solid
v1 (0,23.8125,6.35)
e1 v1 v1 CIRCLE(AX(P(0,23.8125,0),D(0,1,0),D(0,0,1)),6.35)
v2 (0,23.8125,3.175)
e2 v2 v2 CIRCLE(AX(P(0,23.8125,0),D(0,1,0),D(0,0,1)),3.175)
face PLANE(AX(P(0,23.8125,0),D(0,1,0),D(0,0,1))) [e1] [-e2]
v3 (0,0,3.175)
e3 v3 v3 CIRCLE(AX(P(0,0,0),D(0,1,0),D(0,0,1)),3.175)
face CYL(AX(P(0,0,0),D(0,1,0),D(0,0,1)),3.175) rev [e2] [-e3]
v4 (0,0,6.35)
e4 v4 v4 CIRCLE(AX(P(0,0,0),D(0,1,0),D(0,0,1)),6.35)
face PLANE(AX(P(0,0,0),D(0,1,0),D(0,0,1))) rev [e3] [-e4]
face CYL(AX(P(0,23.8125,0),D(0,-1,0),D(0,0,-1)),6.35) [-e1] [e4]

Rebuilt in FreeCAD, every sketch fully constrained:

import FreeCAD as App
import Part
import Sketcher
Q = App.Units.Quantity

doc = App.newDocument("Part")
params = doc.addObject("Spreadsheet::Sheet", "Params")
for row, (alias, value) in enumerate([
    ("sketch1_diameter", "0.5 in"),
    ("pad1_length", "0.9375 in"),
    ("sketch2_diameter", "0.25 in"),
], start=1):
    params.set(f"A{row}", alias)
    params.set(f"B{row}", "=" + value)
    params.setAlias(f"B{row}", alias)

body = doc.addObject("PartDesign::Body", "Body")

sketch1 = doc.addObject("Sketcher::SketchObject", "Sketch")
body.addObject(sketch1)
sketch1.AttachmentSupport = (doc.XZ_Plane, [""])
sketch1.MapMode = "FlatFace"
sketch1.addGeometry(Part.Circle(App.Vector(0, 0, 0), App.Vector(0, 0, 1), 6), False)
sketch1.addConstraint([
    Sketcher.Constraint("Coincident", 0, 3, -1, 1),
    Sketcher.Constraint("Diameter", 0, Q("0.5 in")),
])
sketch1.setExpression("Constraints[1]", "Params.sketch1_diameter")
pad1 = doc.addObject("PartDesign::Pad", "Pad")
body.addObject(pad1)
pad1.Profile = sketch1
pad1.setExpression("Length", "Params.pad1_length")
pad1.Reversed = True

sketch2 = doc.addObject("Sketcher::SketchObject", "Sketch001")
body.addObject(sketch2)
sketch2.AttachmentSupport = (doc.XZ_Plane, [""])
sketch2.MapMode = "FlatFace"
sketch2.AttachmentOffset = App.Placement(App.Vector(0, 0, -0.9375 * 25.4), App.Rotation())
sketch2.addGeometry(Part.Circle(App.Vector(0, 0, 0), App.Vector(0, 0, 1), 3.2), False)
sketch2.addConstraint([
    Sketcher.Constraint("Coincident", 0, 3, -1, 1),
    Sketcher.Constraint("Diameter", 0, Q("0.25 in")),
])
sketch2.setExpression("Constraints[1]", "Params.sketch2_diameter")
pocket1 = doc.addObject("PartDesign::Pocket", "Pocket")
body.addObject(pocket1)
pocket1.Profile = sketch2
pocket1.Type = "ThroughAll"
pocket1.Midplane = True

doc.recompute()
